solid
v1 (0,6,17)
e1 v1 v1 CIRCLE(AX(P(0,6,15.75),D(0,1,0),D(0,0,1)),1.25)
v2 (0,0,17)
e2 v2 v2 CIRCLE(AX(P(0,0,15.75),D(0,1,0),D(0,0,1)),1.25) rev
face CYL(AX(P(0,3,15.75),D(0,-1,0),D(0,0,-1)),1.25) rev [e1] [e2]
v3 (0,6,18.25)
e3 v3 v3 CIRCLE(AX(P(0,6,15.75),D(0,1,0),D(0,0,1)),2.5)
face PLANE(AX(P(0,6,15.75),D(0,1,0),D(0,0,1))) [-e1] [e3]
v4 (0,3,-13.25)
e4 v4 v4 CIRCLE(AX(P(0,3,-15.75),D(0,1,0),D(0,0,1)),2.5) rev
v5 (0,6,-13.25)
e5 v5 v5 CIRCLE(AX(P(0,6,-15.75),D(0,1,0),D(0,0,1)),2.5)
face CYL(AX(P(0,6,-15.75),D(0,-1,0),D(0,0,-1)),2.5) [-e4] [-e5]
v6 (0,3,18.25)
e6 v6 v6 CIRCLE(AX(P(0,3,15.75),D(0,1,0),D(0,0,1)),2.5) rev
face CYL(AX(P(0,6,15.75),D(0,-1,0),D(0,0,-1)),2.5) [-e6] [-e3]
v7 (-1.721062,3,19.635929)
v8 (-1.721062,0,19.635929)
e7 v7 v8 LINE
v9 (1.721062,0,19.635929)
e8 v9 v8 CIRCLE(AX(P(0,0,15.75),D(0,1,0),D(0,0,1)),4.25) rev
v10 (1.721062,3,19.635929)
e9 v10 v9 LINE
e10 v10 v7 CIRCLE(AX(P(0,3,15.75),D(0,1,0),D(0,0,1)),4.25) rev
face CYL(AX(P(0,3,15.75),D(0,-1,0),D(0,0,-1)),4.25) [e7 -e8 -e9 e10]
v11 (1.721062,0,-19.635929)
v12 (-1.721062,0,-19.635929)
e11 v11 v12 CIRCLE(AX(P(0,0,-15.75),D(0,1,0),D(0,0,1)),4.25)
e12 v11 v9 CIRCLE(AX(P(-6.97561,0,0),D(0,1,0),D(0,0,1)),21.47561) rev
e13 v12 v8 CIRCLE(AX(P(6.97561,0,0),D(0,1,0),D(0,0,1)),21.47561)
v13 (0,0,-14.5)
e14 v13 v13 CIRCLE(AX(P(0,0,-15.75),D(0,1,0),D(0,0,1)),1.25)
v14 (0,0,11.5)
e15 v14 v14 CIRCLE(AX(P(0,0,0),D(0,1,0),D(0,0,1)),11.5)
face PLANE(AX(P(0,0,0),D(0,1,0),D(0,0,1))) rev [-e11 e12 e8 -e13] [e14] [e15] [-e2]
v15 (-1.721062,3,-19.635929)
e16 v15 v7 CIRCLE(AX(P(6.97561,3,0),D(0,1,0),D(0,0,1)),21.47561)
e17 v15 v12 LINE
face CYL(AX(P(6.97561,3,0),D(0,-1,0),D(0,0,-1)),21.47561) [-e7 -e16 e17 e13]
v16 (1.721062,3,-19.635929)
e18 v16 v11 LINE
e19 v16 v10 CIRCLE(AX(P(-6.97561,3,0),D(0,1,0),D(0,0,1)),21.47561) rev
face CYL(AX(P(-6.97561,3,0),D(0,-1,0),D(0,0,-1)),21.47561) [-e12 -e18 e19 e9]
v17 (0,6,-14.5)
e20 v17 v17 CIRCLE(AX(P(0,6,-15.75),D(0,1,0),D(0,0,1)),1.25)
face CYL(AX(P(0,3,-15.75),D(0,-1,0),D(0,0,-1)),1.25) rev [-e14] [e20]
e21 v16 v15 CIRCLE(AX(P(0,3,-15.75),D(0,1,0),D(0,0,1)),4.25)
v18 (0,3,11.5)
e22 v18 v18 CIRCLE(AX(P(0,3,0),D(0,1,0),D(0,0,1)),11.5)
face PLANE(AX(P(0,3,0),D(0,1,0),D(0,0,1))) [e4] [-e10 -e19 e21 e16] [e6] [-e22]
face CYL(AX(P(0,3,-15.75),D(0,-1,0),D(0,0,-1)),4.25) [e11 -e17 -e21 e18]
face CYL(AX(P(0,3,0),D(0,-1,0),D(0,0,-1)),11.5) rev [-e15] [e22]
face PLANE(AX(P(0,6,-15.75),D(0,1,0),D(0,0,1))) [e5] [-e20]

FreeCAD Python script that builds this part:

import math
import FreeCAD as App
import Part
import Sketcher
from FreeCAD import Vector

doc = App.newDocument("Part")
body = doc.addObject("PartDesign::Body", "Body")

# Sketch on XZ plane
sketch1 = body.newObject("Sketcher::SketchObject", "Sketch")
sketch1.AttachmentSupport = (doc.getObject("XZ_Plane"), [""])
sketch1.MapMode = "FlatFace"
sketch1.addGeometry(Part.ArcOfCircle(Part.Circle(Vector(7, 0, 0), Vector(0, 0, 1), 21.5), math.radians(114), math.radians(246)), False)
sketch1.addGeometry(Part.ArcOfCircle(Part.Circle(Vector(0, 15.8, 0), Vector(0, 0, 1), 4.2), math.radians(66), math.radians(114)), False)
sketch1.addGeometry(Part.ArcOfCircle(Part.Circle(Vector(-7, 0, 0), Vector(0, 0, 1), 21.5), math.radians(-66), math.radians(66)), False)
sketch1.addGeometry(Part.ArcOfCircle(Part.Circle(Vector(0, -15.8, 0), Vector(0, 0, 1), 4.2), math.radians(-114), math.radians(-66)), False)
sketch1.addGeometry(Part.ArcOfCircle(Part.Circle(Vector(0, 0, 0), Vector(0, 0, 1), 11.5), math.radians(90), math.radians(270)), False)
sketch1.addGeometry(Part.ArcOfCircle(Part.Circle(Vector(0, 0, 0), Vector(0, 0, 1), 11.5), math.radians(-90), math.radians(0)), False)
sketch1.addGeometry(Part.ArcOfCircle(Part.Circle(Vector(0, 0, 0), Vector(0, 0, 1), 11.5), math.radians(0), math.radians(90)), False)
sketch1.addGeometry(Part.Circle(Vector(0, -15.8, 0), Vector(0, 0, 1), 1.2), False)
sketch1.addGeometry(Part.Circle(Vector(0, 15.8, 0), Vector(0, 0, 1), 1.2), False)
sketch1.addConstraint(Sketcher.Constraint("Tangent", 0, 1, 1, 2))
sketch1.addConstraint(Sketcher.Constraint("Tangent", 1, 1, 2, 2))
sketch1.addConstraint(Sketcher.Constraint("Tangent", 2, 1, 3, 2))
sketch1.addConstraint(Sketcher.Constraint("Tangent", 3, 1, 0, 2))
sketch1.addConstraint(Sketcher.Constraint("Tangent", 4, 2, 5, 1))
sketch1.addConstraint(Sketcher.Constraint("Tangent", 5, 2, 6, 1))
sketch1.addConstraint(Sketcher.Constraint("Tangent", 6, 2, 4, 1))
sketch1.addConstraint(Sketcher.Constraint("Coincident", 4, 3, -1, 1))
sketch1.addConstraint(Sketcher.Constraint("Coincident", 7, 3, 3, 3))
sketch1.addConstraint(Sketcher.Constraint("Coincident", 8, 3, 1, 3))
sketch1.addConstraint(Sketcher.Constraint("Equal", 0, 2))
sketch1.addConstraint(Sketcher.Constraint("Equal", 1, 3))
sketch1.addConstraint(Sketcher.Constraint("Equal", 7, 8))
sketch1.addConstraint(Sketcher.Constraint("Symmetric", 0, 3, 2, 3, -1, 1))
sketch1.addConstraint(Sketcher.Constraint("PointOnObject", 0, 3, -1))
sketch1.addConstraint(Sketcher.Constraint("PointOnObject", 4, 2, -2))
sketch1.addConstraint(Sketcher.Constraint("PointOnObject", 5, 2, -1))
sketch1.addConstraint(Sketcher.Constraint("PointOnObject", 6, 2, -2))
sketch1.addConstraint(Sketcher.Constraint("Diameter", 7, 2.5))
sketch1.addConstraint(Sketcher.Constraint("Radius", 4, 11.5))
sketch1.addConstraint(Sketcher.Constraint("Radius", 1, 4.25))
sketch1.addConstraint(Sketcher.Constraint("DistanceY", 3, 3, 1, 3, 31.5))
sketch1.addConstraint(Sketcher.Constraint("Radius", 0, 21.47561))
pad1 = body.newObject("PartDesign::Pad", "Pad")
pad1.Profile = sketch1
pad1.Length = 3
pad1.Reversed = True

# Sketch on XZ plane
sketch2 = body.newObject("Sketcher::SketchObject", "Sketch001")
sketch2.AttachmentSupport = (doc.getObject("XZ_Plane"), [""])
sketch2.MapMode = "FlatFace"
sketch2.addGeometry(Part.Circle(Vector(0, -15.8, 0), Vector(0, 0, 1), 2.5), False)
sketch2.addGeometry(Part.Circle(Vector(0, -15.8, 0), Vector(0, 0, 1), 1.2), False)
sketch2.addConstraint(Sketcher.Constraint("Coincident", 1, 3, 0, 3))
sketch2.addConstraint(Sketcher.Constraint("PointOnObject", 0, 3, -2))
sketch2.addConstraint(Sketcher.Constraint("Diameter", 0, 5.0))
sketch2.addConstraint(Sketcher.Constraint("Diameter", 1, 2.5))
sketch2.addConstraint(Sketcher.Constraint("DistanceY", 0, 3, -1, 1, 15.75))
pad2 = body.newObject("PartDesign::Pad", "Pad001")
pad2.Profile = sketch2
pad2.Length = 6
pad2.Reversed = True
doc.recompute()

mirrored = body.newObject("PartDesign::Mirrored", "Mirrored")
mirrored.Originals = [pad2]
mirrored.MirrorPlane = (doc.getObject("XY_Plane"), [""])
body.Tip = mirrored

doc.recompute()
